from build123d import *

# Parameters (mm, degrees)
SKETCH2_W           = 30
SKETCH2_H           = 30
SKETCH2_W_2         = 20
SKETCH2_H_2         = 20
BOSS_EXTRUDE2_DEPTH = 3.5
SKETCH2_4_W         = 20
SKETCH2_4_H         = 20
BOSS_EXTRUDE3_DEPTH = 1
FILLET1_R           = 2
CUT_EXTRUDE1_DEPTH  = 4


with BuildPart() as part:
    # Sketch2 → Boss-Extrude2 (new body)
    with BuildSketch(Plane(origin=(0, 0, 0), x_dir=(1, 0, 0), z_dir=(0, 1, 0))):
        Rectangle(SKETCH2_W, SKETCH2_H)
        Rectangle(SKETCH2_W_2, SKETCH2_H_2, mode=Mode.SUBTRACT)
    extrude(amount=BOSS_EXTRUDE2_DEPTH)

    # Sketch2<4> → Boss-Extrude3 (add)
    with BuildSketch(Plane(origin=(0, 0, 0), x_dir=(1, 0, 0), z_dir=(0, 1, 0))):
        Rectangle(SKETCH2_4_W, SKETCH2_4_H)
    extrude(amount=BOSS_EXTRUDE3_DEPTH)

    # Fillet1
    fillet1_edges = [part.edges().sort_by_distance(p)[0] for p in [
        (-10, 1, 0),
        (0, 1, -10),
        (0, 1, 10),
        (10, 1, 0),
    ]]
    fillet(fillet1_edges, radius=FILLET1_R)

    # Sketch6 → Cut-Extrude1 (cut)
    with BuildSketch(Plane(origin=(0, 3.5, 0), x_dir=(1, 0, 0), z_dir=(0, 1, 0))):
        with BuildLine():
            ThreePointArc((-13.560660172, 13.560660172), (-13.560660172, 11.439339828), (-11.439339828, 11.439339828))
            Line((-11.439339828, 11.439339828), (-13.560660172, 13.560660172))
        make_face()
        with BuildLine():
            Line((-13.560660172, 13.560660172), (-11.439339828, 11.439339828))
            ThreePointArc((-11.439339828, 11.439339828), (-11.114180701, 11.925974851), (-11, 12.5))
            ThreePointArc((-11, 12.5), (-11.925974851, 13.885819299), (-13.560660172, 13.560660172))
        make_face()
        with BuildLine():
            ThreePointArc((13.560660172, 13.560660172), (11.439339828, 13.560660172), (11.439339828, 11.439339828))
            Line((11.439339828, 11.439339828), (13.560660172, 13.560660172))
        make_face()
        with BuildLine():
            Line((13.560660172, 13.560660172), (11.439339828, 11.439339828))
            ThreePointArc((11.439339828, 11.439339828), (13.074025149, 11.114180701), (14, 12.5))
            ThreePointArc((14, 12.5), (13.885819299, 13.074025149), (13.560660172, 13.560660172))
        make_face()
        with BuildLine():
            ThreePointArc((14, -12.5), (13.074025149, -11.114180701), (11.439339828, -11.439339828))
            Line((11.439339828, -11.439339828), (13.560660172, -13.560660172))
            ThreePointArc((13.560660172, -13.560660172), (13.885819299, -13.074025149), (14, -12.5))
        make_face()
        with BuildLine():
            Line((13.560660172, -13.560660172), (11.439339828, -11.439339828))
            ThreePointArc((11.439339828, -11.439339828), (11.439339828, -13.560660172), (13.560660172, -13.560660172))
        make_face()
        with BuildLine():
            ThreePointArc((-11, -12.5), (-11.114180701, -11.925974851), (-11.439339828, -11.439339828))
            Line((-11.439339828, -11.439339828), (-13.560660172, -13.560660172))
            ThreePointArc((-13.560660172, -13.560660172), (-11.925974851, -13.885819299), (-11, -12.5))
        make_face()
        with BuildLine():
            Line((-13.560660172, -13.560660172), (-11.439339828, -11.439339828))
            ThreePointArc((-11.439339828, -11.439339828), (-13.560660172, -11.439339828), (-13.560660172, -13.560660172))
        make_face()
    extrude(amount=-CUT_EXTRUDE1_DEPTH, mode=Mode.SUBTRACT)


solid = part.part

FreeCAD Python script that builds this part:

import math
import FreeCAD as App
import Part
import Sketcher


def edges_at(feature, points):
    """Names of the edges that pass closest to the given points."""
    edges = feature.Shape.Edges
    near = lambda p: min(range(len(edges)), key=lambda i: edges[i].distToShape(Part.Vertex(*p))[0])
    return sorted({f"Edge{near(p) + 1}" for p in points})


def add_polygon(sketch, points):
    """Adds a closed chain of lines whose ends are joined by coincident constraints."""
    first, n = sketch.GeometryCount, len(points)
    for a, b in zip(points, points[1:] + points[:1]):
        sketch.addGeometry(Part.LineSegment(App.Vector(*a, 0), App.Vector(*b, 0)), False)
    for i in range(n):
        sketch.addConstraint(Sketcher.Constraint("Coincident", first + i, 2, first + (i + 1) % n, 1))

doc = App.newDocument("Part")
body = doc.addObject("PartDesign::Body", "Body")

sketch1 = doc.addObject("Sketcher::SketchObject", "Sketch")
body.addObject(sketch1)
sketch1.AttachmentSupport = (doc.XZ_Plane, [""])
sketch1.MapMode = "FlatFace"
add_polygon(sketch1, [(-15, -15), (-15, 15), (15, 15), (15, -15)])
add_polygon(sketch1, [(10, 10), (-10, 10), (-10, -10), (10, -10)])
sketch1.addConstraint(Sketcher.Constraint("Vertical", 0))
sketch1.addConstraint(Sketcher.Constraint("Horizontal", 1))
sketch1.addConstraint(Sketcher.Constraint("Vertical", 2))
sketch1.addConstraint(Sketcher.Constraint("Horizontal", 3))
sketch1.addConstraint(Sketcher.Constraint("Horizontal", 4))
sketch1.addConstraint(Sketcher.Constraint("Vertical", 5))
sketch1.addConstraint(Sketcher.Constraint("Horizontal", 6))
sketch1.addConstraint(Sketcher.Constraint("Vertical", 7))
sketch1.addConstraint(Sketcher.Constraint("Symmetric", 0, 2, 2, 2, -1, 1))
sketch1.addConstraint(Sketcher.Constraint("Symmetric", 4, 2, 6, 2, -1, 1))
sketch1.addConstraint(Sketcher.Constraint("Equal", 3, 0))
sketch1.addConstraint(Sketcher.Constraint("Equal", 6, 5))
sketch1.addConstraint(Sketcher.Constraint("DistanceX", 1, 1, 1, 2, 30.0))
sketch1.addConstraint(Sketcher.Constraint("DistanceX", 4, 2, 4, 1, 20.0))
pad1 = doc.addObject("PartDesign::Pad", "Pad")
body.addObject(pad1)
pad1.Profile = sketch1
pad1.Length = 3.5
pad1.Reversed = True

sketch2 = doc.addObject("Sketcher::SketchObject", "Sketch001")
body.addObject(sketch2)
sketch2.AttachmentSupport = (doc.XZ_Plane, [""])
sketch2.MapMode = "FlatFace"
add_polygon(sketch2, [(-10, -10), (-10, 10), (10, 10), (10, -10)])
sketch2.addConstraint(Sketcher.Constraint("Vertical", 0))
sketch2.addConstraint(Sketcher.Constraint("Horizontal", 1))
sketch2.addConstraint(Sketcher.Constraint("Vertical", 2))
sketch2.addConstraint(Sketcher.Constraint("Horizontal", 3))
sketch2.addConstraint(Sketcher.Constraint("Symmetric", 0, 2, 2, 2, -1, 1))
sketch2.addConstraint(Sketcher.Constraint("Equal", 3, 0))
sketch2.addConstraint(Sketcher.Constraint("DistanceX", 1, 1, 1, 2, 20.0))
pad2 = doc.addObject("PartDesign::Pad", "Pad001")
body.addObject(pad2)
pad2.Profile = sketch2
pad2.Length = 1
pad2.Reversed = True
doc.recompute()

fillet = doc.addObject("PartDesign::Fillet", "Fillet")
body.addObject(fillet)
fillet.Base = (pad2, edges_at(pad2, [
    (-10, 1, 0),
    (0, 1, -10),
    (0, 1, 10),
    (10, 1, 0),
]))
fillet.Radius = 2

sketch3 = doc.addObject("Sketcher::SketchObject", "Sketch002")
body.addObject(sketch3)
sketch3.AttachmentSupport = (doc.XZ_Plane, [""])
sketch3.MapMode = "FlatFace"
sketch3.AttachmentOffset = App.Placement(App.Vector(0, 0, -3.5), App.Rotation())
sketch3.addGeometry(Part.ArcOfCircle(Part.Circle(App.Vector(-12.5, -12.5, 0), App.Vector(0, 0, 1), 1.5), math.radians(45), math.radians(225)), False)
sketch3.addGeometry(Part.ArcOfCircle(Part.Circle(App.Vector(-12.5, -12.5, 0), App.Vector(0, 0, 1), 1.5), math.radians(0), math.radians(45)), False)
sketch3.addGeometry(Part.ArcOfCircle(Part.Circle(App.Vector(-12.5, -12.5, 0), App.Vector(0, 0, 1), 1.5), math.radians(-135), math.radians(0)), False)
sketch3.addGeometry(Part.ArcOfCircle(Part.Circle(App.Vector(12.5, -12.5, 0), App.Vector(0, 0, 1), 1.5), math.radians(135), math.radians(315)), False)
sketch3.addGeometry(Part.ArcOfCircle(Part.Circle(App.Vector(12.5, -12.5, 0), App.Vector(0, 0, 1), 1.5), math.radians(0), math.radians(135)), False)
sketch3.addGeometry(Part.ArcOfCircle(Part.Circle(App.Vector(12.5, -12.5, 0), App.Vector(0, 0, 1), 1.5), math.radians(-45), math.radians(0)), False)
sketch3.addGeometry(Part.ArcOfCircle(Part.Circle(App.Vector(12.5, 12.5, 0), App.Vector(0, 0, 1), 1.5), math.radians(-135), math.radians(0)), False)
sketch3.addGeometry(Part.ArcOfCircle(Part.Circle(App.Vector(12.5, 12.5, 0), App.Vector(0, 0, 1), 1.5), math.radians(45), math.radians(225)), False)
sketch3.addGeometry(Part.ArcOfCircle(Part.Circle(App.Vector(12.5, 12.5, 0), App.Vector(0, 0, 1), 1.5), math.radians(0), math.radians(45)), False)
sketch3.addGeometry(Part.ArcOfCircle(Part.Circle(App.Vector(-12.5, 12.5, 0), App.Vector(0, 0, 1), 1.5), math.radians(-45), math.radians(0)), False)
sketch3.addGeometry(Part.ArcOfCircle(Part.Circle(App.Vector(-12.5, 12.5, 0), App.Vector(0, 0, 1), 1.5), math.radians(135), math.radians(315)), False)
sketch3.addGeometry(Part.ArcOfCircle(Part.Circle(App.Vector(-12.5, 12.5, 0), App.Vector(0, 0, 1), 1.5), math.radians(0), math.radians(135)), False)
sketch3.addConstraint(Sketcher.Constraint("Tangent", 0, 1, 1, 2))
sketch3.addConstraint(Sketcher.Constraint("Tangent", 1, 1, 2, 2))
sketch3.addConstraint(Sketcher.Constraint("Tangent", 2, 1, 0, 2))
sketch3.addConstraint(Sketcher.Constraint("Tangent", 3, 1, 4, 2))
sketch3.addConstraint(Sketcher.Constraint("Tangent", 4, 1, 5, 2))
sketch3.addConstraint(Sketcher.Constraint("Tangent", 5, 1, 3, 2))
sketch3.addConstraint(Sketcher.Constraint("Tangent", 6, 1, 7, 2))
sketch3.addConstraint(Sketcher.Constraint("Tangent", 7, 1, 8, 2))
sketch3.addConstraint(Sketcher.Constraint("Tangent", 8, 1, 6, 2))
sketch3.addConstraint(Sketcher.Constraint("Tangent", 9, 1, 10, 2))
sketch3.addConstraint(Sketcher.Constraint("Tangent", 10, 1, 11, 2))
sketch3.addConstraint(Sketcher.Constraint("Tangent", 11, 1, 9, 2))
sketch3.addConstraint(Sketcher.Constraint("Equal", 2, 3))
sketch3.addConstraint(Sketcher.Constraint("Equal", 5, 6))
sketch3.addConstraint(Sketcher.Constraint("Equal", 8, 9))
sketch3.addConstraint(Sketcher.Constraint("Symmetric", 0, 3, 6, 3, -1, 1))
sketch3.addConstraint(Sketcher.Constraint("Symmetric", 3, 3, 9, 3, -1, 1))
sketch3.addConstraint(Sketcher.Constraint("Symmetric", 0, 3, 3, 3, -2))
sketch3.addConstraint(Sketcher.Constraint("Horizontal", 5, 3, 1, 1))
sketch3.addConstraint(Sketcher.Constraint("Horizontal", 0, 1, 3, 1))
sketch3.addConstraint(Sketcher.Constraint("Horizontal", 1, 1, 4, 1))
sketch3.addConstraint(Sketcher.Constraint("Horizontal", 2, 1, 5, 1))
sketch3.addConstraint(Sketcher.Constraint("Horizontal", 11, 3, 8, 1))
sketch3.addConstraint(Sketcher.Constraint("Horizontal", 6, 1, 9, 1))
sketch3.addConstraint(Sketcher.Constraint("Horizontal", 7, 1, 10, 1))
sketch3.addConstraint(Sketcher.Constraint("Horizontal", 8, 1, 11, 1))
sketch3.addConstraint(Sketcher.Constraint("Vertical", 3, 1, 6, 1))
sketch3.addConstraint(Sketcher.Constraint("Vertical", 5, 1, 7, 1))
sketch3.addConstraint(Sketcher.Constraint("Radius", 0, 1.5))
sketch3.addConstraint(Sketcher.Constraint("DistanceX", 1, 1, -1, 1, 11.0))
sketch3.addConstraint(Sketcher.Constraint("DistanceY", 3, 3, 6, 3, 25.0))
sketch3.addConstraint(Sketcher.Constraint("DistanceY", 3, 1, 7, 1, 25.0))
sketch3.addConstraint(Sketcher.Constraint("DistanceX", 0, 1, -1, 1, 11.43934))
pocket1 = doc.addObject("PartDesign::Pocket", "Pocket")
body.addObject(pocket1)
pocket1.Profile = sketch3
pocket1.Length = 4
pocket1.Reversed = True

doc.recompute()
